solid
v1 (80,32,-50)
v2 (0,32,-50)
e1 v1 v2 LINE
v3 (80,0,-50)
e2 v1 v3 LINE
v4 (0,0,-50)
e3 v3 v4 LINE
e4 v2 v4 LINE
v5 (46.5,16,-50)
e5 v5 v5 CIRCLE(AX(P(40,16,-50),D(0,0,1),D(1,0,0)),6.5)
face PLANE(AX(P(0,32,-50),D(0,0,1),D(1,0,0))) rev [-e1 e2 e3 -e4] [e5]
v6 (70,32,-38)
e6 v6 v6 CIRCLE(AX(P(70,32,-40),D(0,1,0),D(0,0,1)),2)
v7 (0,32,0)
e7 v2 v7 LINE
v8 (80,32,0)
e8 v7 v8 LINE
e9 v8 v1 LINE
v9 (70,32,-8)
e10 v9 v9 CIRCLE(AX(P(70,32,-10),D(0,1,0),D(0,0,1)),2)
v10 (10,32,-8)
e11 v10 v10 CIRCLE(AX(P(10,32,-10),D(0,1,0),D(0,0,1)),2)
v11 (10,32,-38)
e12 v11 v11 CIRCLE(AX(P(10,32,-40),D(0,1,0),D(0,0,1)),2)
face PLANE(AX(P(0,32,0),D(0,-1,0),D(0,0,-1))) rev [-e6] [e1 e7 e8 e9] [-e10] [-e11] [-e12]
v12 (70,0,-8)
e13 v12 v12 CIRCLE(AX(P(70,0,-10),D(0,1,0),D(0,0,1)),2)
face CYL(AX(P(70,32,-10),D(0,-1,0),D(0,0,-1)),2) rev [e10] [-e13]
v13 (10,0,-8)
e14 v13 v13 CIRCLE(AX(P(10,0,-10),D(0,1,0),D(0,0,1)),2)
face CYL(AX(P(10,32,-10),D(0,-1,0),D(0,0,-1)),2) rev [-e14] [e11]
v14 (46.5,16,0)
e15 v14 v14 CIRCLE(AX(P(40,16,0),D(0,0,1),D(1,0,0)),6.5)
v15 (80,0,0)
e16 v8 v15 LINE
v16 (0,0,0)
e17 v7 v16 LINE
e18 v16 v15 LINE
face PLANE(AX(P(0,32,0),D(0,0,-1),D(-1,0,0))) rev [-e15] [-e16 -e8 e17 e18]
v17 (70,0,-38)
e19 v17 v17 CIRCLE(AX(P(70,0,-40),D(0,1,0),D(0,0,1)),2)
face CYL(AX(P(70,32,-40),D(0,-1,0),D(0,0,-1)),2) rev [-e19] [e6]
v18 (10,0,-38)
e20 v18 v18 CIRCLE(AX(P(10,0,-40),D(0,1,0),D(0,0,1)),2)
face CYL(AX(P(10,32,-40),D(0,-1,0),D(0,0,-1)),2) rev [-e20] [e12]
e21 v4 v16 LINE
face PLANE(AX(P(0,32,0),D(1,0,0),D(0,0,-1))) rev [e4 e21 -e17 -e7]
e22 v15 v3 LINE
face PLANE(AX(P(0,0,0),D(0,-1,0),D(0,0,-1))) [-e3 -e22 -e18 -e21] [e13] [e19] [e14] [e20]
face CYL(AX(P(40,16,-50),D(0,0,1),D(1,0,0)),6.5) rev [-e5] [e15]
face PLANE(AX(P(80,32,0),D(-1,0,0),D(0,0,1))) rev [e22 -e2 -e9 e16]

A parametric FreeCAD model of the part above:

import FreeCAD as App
import Part
import Sketcher

doc = App.newDocument("Part")
body = doc.addObject("PartDesign::Body", "Body")

# Sketch on XZ plane
sketch1 = body.newObject("Sketcher::SketchObject", "Sketch")
sketch1.AttachmentSupport = (doc.getObject("XZ_Plane"), [""])
sketch1.MapMode = "FlatFace"
sketch1.addGeometry(Part.LineSegment(App.Vector(0, -50, 0), App.Vector(0, 0, 0)), False)
sketch1.addGeometry(Part.LineSegment(App.Vector(0, 0, 0), App.Vector(80, 0, 0)), False)
sketch1.addGeometry(Part.LineSegment(App.Vector(80, 0, 0), App.Vector(80, -50, 0)), False)
sketch1.addGeometry(Part.LineSegment(App.Vector(80, -50, 0), App.Vector(0, -50, 0)), False)
sketch1.addGeometry(Part.Circle(App.Vector(10, -10, 0), App.Vector(0, 0, 1), 2), False)
sketch1.addGeometry(Part.Circle(App.Vector(70, -10, 0), App.Vector(0, 0, 1), 2), False)
sketch1.addGeometry(Part.Circle(App.Vector(10, -40, 0), App.Vector(0, 0, 1), 2), False)
sketch1.addGeometry(Part.Circle(App.Vector(70, -40, 0), App.Vector(0, 0, 1), 2), False)
sketch1.addConstraint(Sketcher.Constraint("Coincident", 0, 2, 1, 1))
sketch1.addConstraint(Sketcher.Constraint("Coincident", 1, 2, 2, 1))
sketch1.addConstraint(Sketcher.Constraint("Coincident", 2, 2, 3, 1))
sketch1.addConstraint(Sketcher.Constraint("Coincident", 3, 2, 0, 1))
sketch1.addConstraint(Sketcher.Constraint("Vertical", 0))
sketch1.addConstraint(Sketcher.Constraint("Horizontal", 1))
sketch1.addConstraint(Sketcher.Constraint("Vertical", 2))
sketch1.addConstraint(Sketcher.Constraint("Horizontal", 3))
sketch1.addConstraint(Sketcher.Constraint("Coincident", 0, 2, -1, 1))
sketch1.addConstraint(Sketcher.Constraint("Equal", 4, 5))
sketch1.addConstraint(Sketcher.Constraint("Equal", 5, 6))
sketch1.addConstraint(Sketcher.Constraint("Equal", 6, 7))
sketch1.addConstraint(Sketcher.Constraint("Horizontal", 4, 3, 5, 3))
sketch1.addConstraint(Sketcher.Constraint("Horizontal", 6, 3, 7, 3))
sketch1.addConstraint(Sketcher.Constraint("Vertical", 4, 3, 6, 3))
sketch1.addConstraint(Sketcher.Constraint("Vertical", 5, 3, 7, 3))
sketch1.addConstraint(Sketcher.Constraint("Diameter", 4, 4.0))
sketch1.addConstraint(Sketcher.Constraint("DistanceX", 1, 1, 1, 2, 80.0))
sketch1.addConstraint(Sketcher.Constraint("DistanceY", 0, 1, 0, 2, 50.0))
sketch1.addConstraint(Sketcher.Constraint("DistanceX", -1, 1, 4, 3, 10.0))
sketch1.addConstraint(Sketcher.Constraint("DistanceY", 4, 3, -1, 1, 10.0))
sketch1.addConstraint(Sketcher.Constraint("DistanceX", -1, 1, 5, 3, 70.0))
sketch1.addConstraint(Sketcher.Constraint("DistanceY", 6, 3, -1, 1, 40.0))
pad1 = body.newObject("PartDesign::Pad", "Pad")
pad1.Profile = sketch1
pad1.Length = 32
pad1.Reversed = True

# Sketch on XY plane
sketch2 = body.newObject("Sketcher::SketchObject", "Sketch001")
sketch2.AttachmentSupport = (doc.getObject("XY_Plane"), [""])
sketch2.MapMode = "FlatFace"
sketch2.addGeometry(Part.Circle(App.Vector(40, 16, 0), App.Vector(0, 0, 1), 6), False)
sketch2.addConstraint(Sketcher.Constraint("Diameter", 0, 13.0))
sketch2.addConstraint(Sketcher.Constraint("DistanceX", -1, 1, 0, 3, 40.0))
sketch2.addConstraint(Sketcher.Constraint("DistanceY", -1, 1, 0, 3, 16.0))
pocket1 = body.newObject("PartDesign::Pocket", "Pocket")
pocket1.Profile = sketch2
pocket1.Type = "ThroughAll"

doc.recompute()
